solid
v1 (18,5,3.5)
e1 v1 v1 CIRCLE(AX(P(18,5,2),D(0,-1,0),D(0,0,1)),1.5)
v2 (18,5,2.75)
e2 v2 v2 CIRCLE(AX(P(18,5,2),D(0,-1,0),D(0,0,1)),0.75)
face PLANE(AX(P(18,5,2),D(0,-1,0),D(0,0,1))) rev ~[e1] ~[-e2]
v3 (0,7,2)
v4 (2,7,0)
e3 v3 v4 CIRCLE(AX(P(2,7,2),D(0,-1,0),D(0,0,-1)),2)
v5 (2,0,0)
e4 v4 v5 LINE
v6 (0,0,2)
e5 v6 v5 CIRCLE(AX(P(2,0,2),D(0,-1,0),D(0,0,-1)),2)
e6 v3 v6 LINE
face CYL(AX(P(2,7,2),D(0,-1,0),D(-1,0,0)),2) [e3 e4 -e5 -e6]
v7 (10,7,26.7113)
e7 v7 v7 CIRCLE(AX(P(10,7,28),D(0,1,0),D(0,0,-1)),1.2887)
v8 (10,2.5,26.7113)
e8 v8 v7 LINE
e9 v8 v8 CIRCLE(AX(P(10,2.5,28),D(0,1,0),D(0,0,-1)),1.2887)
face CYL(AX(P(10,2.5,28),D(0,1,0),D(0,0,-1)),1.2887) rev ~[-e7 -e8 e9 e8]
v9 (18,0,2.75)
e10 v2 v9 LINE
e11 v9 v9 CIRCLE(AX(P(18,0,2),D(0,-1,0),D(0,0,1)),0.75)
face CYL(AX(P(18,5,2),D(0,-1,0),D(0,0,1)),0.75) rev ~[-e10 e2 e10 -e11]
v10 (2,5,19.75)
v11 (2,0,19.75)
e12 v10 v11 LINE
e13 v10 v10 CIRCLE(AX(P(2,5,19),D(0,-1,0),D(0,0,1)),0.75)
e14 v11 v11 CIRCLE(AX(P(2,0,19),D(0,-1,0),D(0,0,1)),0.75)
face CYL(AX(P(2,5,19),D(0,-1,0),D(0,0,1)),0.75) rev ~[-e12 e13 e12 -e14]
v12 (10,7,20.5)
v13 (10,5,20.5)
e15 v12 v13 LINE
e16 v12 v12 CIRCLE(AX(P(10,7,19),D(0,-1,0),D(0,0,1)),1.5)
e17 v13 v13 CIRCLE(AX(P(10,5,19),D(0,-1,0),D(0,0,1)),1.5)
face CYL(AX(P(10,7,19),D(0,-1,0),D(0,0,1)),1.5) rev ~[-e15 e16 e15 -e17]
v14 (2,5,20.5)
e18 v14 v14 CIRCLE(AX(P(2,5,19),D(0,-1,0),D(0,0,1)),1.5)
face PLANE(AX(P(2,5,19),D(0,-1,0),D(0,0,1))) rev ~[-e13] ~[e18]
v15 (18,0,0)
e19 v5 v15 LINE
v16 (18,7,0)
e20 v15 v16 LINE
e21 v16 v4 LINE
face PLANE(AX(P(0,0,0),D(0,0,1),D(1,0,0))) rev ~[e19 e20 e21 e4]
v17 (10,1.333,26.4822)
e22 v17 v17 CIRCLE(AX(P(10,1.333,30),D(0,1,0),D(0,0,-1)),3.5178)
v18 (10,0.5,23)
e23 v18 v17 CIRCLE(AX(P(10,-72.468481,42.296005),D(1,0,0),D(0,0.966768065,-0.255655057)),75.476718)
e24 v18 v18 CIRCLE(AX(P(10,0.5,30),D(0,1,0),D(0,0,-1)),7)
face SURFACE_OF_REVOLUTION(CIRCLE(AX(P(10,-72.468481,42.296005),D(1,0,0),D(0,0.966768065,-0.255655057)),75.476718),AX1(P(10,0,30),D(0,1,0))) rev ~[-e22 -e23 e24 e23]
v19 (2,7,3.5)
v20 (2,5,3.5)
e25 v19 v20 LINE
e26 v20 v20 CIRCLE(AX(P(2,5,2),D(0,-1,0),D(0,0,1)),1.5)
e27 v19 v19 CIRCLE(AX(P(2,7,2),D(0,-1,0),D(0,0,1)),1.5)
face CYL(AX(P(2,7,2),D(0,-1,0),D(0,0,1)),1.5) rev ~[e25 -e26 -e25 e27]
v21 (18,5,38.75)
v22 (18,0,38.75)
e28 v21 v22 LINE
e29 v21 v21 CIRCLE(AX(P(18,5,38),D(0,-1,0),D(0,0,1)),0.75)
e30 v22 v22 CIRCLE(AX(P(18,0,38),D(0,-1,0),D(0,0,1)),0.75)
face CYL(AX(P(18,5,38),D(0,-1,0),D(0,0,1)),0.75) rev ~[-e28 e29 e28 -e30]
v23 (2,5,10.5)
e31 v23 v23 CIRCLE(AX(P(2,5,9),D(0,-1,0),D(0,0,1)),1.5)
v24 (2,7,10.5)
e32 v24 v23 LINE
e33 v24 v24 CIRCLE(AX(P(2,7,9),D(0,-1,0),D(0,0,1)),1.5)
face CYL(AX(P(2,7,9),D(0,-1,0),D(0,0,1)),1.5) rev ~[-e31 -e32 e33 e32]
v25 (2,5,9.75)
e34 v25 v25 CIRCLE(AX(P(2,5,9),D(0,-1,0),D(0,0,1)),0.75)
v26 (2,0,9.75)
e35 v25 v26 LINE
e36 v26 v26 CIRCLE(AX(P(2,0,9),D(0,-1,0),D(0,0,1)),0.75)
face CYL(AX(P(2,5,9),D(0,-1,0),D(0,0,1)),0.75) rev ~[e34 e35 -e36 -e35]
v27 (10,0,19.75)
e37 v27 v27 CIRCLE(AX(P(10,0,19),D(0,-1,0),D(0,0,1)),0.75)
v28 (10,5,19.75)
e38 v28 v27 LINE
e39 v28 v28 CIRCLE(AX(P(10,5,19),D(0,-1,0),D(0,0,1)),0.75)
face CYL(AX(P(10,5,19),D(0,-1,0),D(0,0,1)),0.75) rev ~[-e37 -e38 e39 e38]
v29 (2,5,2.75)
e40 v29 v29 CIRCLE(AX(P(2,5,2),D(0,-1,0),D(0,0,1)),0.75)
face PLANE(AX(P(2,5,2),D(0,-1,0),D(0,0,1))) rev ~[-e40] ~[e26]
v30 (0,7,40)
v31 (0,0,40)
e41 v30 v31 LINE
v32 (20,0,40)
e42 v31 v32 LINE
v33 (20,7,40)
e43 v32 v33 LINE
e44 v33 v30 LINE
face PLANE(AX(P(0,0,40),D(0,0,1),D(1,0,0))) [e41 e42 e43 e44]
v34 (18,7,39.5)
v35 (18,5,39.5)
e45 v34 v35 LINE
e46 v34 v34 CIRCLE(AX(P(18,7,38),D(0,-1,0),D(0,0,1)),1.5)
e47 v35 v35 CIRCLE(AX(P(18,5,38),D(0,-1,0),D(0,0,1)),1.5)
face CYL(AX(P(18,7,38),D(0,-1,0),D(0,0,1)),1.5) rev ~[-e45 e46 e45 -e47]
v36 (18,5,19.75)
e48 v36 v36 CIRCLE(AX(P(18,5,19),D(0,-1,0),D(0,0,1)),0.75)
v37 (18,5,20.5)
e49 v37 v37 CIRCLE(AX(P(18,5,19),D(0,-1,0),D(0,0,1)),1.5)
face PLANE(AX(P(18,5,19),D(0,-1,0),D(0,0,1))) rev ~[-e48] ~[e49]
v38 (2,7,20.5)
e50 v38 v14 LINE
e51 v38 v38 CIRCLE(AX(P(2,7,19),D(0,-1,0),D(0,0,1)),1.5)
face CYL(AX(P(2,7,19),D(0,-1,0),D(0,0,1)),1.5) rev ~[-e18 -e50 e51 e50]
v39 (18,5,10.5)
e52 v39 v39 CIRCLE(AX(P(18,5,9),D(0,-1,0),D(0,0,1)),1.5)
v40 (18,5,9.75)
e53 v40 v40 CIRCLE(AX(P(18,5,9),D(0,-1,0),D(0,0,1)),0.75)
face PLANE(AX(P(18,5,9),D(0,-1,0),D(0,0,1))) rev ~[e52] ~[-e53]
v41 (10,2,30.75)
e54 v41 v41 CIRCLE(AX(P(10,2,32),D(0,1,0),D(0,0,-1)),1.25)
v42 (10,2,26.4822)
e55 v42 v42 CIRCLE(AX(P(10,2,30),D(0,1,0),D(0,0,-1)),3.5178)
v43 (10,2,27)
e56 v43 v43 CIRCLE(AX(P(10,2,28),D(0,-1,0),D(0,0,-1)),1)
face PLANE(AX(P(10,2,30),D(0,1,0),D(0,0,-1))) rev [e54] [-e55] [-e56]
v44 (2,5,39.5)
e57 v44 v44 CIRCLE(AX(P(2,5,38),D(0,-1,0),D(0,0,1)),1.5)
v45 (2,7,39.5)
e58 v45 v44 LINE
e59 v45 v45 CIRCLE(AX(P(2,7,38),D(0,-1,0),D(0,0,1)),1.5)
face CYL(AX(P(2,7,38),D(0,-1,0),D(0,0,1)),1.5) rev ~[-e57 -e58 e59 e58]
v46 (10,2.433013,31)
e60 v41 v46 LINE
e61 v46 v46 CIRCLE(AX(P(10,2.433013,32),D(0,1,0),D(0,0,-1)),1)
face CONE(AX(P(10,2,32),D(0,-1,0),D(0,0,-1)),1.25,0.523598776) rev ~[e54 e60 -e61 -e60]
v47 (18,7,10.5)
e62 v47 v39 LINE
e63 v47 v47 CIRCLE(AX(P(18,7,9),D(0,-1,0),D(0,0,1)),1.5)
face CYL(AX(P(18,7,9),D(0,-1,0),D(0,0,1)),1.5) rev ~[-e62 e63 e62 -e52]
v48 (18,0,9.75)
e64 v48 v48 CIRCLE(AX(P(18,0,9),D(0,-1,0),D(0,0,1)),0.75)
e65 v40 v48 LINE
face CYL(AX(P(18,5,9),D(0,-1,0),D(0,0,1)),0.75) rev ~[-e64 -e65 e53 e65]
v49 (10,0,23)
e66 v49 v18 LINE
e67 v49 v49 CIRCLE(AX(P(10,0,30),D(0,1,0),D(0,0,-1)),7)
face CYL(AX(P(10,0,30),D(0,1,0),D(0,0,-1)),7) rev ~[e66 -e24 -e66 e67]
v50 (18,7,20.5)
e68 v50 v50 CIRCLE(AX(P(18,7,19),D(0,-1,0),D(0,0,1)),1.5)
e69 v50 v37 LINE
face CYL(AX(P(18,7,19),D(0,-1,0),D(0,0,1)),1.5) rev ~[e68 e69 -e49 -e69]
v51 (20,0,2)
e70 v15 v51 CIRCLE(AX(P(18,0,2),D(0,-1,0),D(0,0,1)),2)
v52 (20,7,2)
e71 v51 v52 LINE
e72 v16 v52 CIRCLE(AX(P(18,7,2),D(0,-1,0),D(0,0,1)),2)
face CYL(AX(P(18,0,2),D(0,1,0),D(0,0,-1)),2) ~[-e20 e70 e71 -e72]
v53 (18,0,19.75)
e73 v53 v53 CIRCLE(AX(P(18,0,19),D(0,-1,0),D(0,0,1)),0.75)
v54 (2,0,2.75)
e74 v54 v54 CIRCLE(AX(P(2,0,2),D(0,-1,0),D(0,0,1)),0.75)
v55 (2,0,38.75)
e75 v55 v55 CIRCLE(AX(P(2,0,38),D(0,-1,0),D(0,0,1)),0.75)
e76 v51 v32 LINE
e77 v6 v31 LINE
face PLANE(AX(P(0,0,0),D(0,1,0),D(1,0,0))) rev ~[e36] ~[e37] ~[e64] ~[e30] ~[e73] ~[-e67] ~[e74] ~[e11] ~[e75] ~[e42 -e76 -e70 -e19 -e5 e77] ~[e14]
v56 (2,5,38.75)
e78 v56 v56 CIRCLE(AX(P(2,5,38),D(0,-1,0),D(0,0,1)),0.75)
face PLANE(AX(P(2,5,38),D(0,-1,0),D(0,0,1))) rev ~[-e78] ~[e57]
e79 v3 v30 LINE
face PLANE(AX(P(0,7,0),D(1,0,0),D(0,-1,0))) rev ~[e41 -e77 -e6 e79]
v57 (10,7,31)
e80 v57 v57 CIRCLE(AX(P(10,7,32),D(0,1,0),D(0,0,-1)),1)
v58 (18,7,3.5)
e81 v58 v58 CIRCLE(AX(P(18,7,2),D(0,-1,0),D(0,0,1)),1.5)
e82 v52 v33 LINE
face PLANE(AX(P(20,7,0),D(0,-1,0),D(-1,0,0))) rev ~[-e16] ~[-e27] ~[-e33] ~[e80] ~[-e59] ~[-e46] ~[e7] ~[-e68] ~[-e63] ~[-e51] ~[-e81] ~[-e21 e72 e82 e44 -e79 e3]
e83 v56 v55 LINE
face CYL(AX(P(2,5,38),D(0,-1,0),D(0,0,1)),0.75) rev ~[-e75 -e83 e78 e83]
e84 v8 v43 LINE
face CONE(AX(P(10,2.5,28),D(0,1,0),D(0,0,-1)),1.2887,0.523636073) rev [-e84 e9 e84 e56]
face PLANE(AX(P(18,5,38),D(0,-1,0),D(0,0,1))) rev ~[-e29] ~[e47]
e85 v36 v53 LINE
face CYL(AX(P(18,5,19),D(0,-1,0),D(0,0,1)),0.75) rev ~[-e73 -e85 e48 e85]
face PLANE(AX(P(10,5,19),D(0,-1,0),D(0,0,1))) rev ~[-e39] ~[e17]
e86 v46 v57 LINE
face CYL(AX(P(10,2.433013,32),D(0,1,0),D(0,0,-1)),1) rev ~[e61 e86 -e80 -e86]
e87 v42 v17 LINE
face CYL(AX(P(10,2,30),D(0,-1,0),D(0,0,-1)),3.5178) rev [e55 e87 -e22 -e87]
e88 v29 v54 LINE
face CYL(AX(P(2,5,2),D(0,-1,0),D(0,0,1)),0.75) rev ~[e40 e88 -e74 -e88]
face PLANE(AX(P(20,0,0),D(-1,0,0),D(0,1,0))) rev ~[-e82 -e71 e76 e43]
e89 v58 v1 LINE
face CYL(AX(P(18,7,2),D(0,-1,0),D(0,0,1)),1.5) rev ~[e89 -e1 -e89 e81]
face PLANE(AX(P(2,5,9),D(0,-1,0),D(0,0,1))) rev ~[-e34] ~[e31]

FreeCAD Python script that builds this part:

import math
import FreeCAD as App
import Part
import Sketcher
from FreeCAD import Vector
Q = App.Units.Quantity


def edges_at(feature, points):
    """Names of the edges that pass closest to the given points."""
    edges = feature.Shape.Edges
    near = lambda p: min(range(len(edges)), key=lambda i: edges[i].distToShape(Part.Vertex(*p))[0])
    return sorted({f"Edge{near(p) + 1}" for p in points})

doc = App.newDocument("Part")
body = doc.addObject("PartDesign::Body", "Body")

# Sketch on XY plane
sketch1 = doc.addObject("Sketcher::SketchObject", "Sketch")
body.addObject(sketch1)
sketch1.AttachmentSupport = (doc.XY_Plane, [""])
sketch1.MapMode = "FlatFace"
sketch1.addGeometry(Part.LineSegment(Vector(0, 7, 0), Vector(0, 0, 0)), False)
sketch1.addGeometry(Part.LineSegment(Vector(0, 0, 0), Vector(20, 0, 0)), False)
sketch1.addGeometry(Part.LineSegment(Vector(20, 0, 0), Vector(20, 7, 0)), False)
sketch1.addGeometry(Part.LineSegment(Vector(20, 7, 0), Vector(0, 7, 0)), False)
sketch1.addConstraint(Sketcher.Constraint("Coincident", 0, 2, 1, 1))
sketch1.addConstraint(Sketcher.Constraint("Coincident", 1, 2, 2, 1))
sketch1.addConstraint(Sketcher.Constraint("Coincident", 2, 2, 3, 1))
sketch1.addConstraint(Sketcher.Constraint("Coincident", 3, 2, 0, 1))
sketch1.addConstraint(Sketcher.Constraint("Vertical", 0))
sketch1.addConstraint(Sketcher.Constraint("Horizontal", 1))
sketch1.addConstraint(Sketcher.Constraint("Vertical", 2))
sketch1.addConstraint(Sketcher.Constraint("Horizontal", 3))
sketch1.addConstraint(Sketcher.Constraint("Coincident", 0, 2, -1, 1))
sketch1.addConstraint(Sketcher.Constraint("DistanceX", 1, 1, 1, 2, Q("20 mm")))
sketch1.addConstraint(Sketcher.Constraint("DistanceY", 0, 2, 0, 1, Q("7 mm")))
pad1 = doc.addObject("PartDesign::Pad", "Pad")
body.addObject(pad1)
pad1.Profile = sketch1
pad1.Length = 40

# Sketch on YZ plane
sketch2 = doc.addObject("Sketcher::SketchObject", "Sketch001")
body.addObject(sketch2)
sketch2.AttachmentSupport = (doc.YZ_Plane, [""])
sketch2.MapMode = "FlatFace"
sketch2.AttachmentOffset = App.Placement(Vector(0, 0, 10), App.Rotation())
sketch2.addGeometry(Part.LineSegment(Vector(2, 30, 0), Vector(0, 30, 0)), False)
sketch2.addGeometry(Part.LineSegment(Vector(0, 30, 0), Vector(0, 23, 0)), False)
sketch2.addGeometry(Part.LineSegment(Vector(0, 23, 0), Vector(0.5, 23, 0)), False)
sketch2.addGeometry(Part.ArcOfCircle(Part.Circle(Vector(-72.5, 42.3, 0), Vector(0, 0, 1), 75.5), math.radians(-14.81), math.radians(-12.09)), False)
sketch2.addGeometry(Part.LineSegment(Vector(1.3, 26.5, 0), Vector(2, 26.5, 0)), False)
sketch2.addGeometry(Part.LineSegment(Vector(2, 26.5, 0), Vector(2, 30, 0)), False)
sketch2.addGeometry(Part.LineSegment(Vector(-72.5, 30, 0), Vector(2, 30, 0)), True)  # axis
sketch2.addConstraint(Sketcher.Constraint("Coincident", 0, 2, 1, 1))
sketch2.addConstraint(Sketcher.Constraint("Coincident", 1, 2, 2, 1))
sketch2.addConstraint(Sketcher.Constraint("Coincident", 2, 2, 3, 1))
sketch2.addConstraint(Sketcher.Constraint("Coincident", 3, 2, 4, 1))
sketch2.addConstraint(Sketcher.Constraint("Coincident", 4, 2, 5, 1))
sketch2.addConstraint(Sketcher.Constraint("Coincident", 5, 2, 0, 1))
sketch2.addConstraint(Sketcher.Constraint("Horizontal", 0))
sketch2.addConstraint(Sketcher.Constraint("Vertical", 1))
sketch2.addConstraint(Sketcher.Constraint("Horizontal", 2))
sketch2.addConstraint(Sketcher.Constraint("Horizontal", 4))
sketch2.addConstraint(Sketcher.Constraint("Vertical", 5))
sketch2.addConstraint(Sketcher.Constraint("Horizontal", 6))
sketch2.addConstraint(Sketcher.Constraint("Coincident", 6, 2, 5, 2))
sketch2.addConstraint(Sketcher.Constraint("PointOnObject", 0, 2, -2))
sketch2.addConstraint(Sketcher.Constraint("Vertical", 3, 3, 6, 1))
sketch2.addConstraint(Sketcher.Constraint("DistanceX", 0, 2, 0, 1, Q("2 mm")))
sketch2.addConstraint(Sketcher.Constraint("DistanceY", 1, 2, 1, 1, Q("7 mm")))
sketch2.addConstraint(Sketcher.Constraint("DistanceX", 2, 1, 2, 2, Q("0.5 mm")))
sketch2.addConstraint(Sketcher.Constraint("DistanceY", -1, 1, 0, 2, Q("30 mm")))
sketch2.addConstraint(Sketcher.Constraint("Radius", 3, Q("75.4767 mm")))
sketch2.addConstraint(Sketcher.Constraint("DistanceX", 4, 1, 4, 2, Q("0.667 mm")))
sketch2.addConstraint(Sketcher.Constraint("DistanceX", 6, 1, 6, 2, Q("74.4685 mm")))
groove = doc.addObject("PartDesign::Groove", "Groove")
body.addObject(groove)
groove.Profile = sketch2
groove.ReferenceAxis = (sketch2, ["Axis0"])
groove.Angle = 360

# Sketch on XZ plane
sketch3 = doc.addObject("Sketcher::SketchObject", "Sketch002")
body.addObject(sketch3)
sketch3.AttachmentSupport = (doc.XZ_Plane, [""])
sketch3.MapMode = "FlatFace"
sketch3.AttachmentOffset = App.Placement(Vector(0, 0, -2), App.Rotation())
sketch3.addGeometry(Part.Circle(Vector(10, 32, 0), Vector(0, 0, 1), 1), False)
sketch3.addConstraint(Sketcher.Constraint("Diameter", 0, Q("2 mm")))
sketch3.addConstraint(Sketcher.Constraint("DistanceX", -1, 1, 0, 3, Q("10 mm")))
sketch3.addConstraint(Sketcher.Constraint("DistanceY", -1, 1, 0, 3, Q("32 mm")))
doc.recompute()
hole = doc.addObject("PartDesign::Hole", "Hole")
body.addObject(hole)
hole.Profile = sketch3
hole.ThreadType = "None"
hole.Diameter = 2
hole.DepthType = "Dimension"
hole.Depth = 10
hole.DrillPoint = "Flat"
hole.HoleCutType = "Countersink"
hole.HoleCutDiameter = 2.5
hole.HoleCutCountersinkAngle = 60

# Sketch on XZ plane
sketch4 = doc.addObject("Sketcher::SketchObject", "Sketch003")
body.addObject(sketch4)
sketch4.AttachmentSupport = (doc.XZ_Plane, [""])
sketch4.MapMode = "FlatFace"
sketch4.AttachmentOffset = App.Placement(Vector(0, 0, -2), App.Rotation())
sketch4.addGeometry(Part.Circle(Vector(10, 28, 0), Vector(0, 0, 1), 1), False)
sketch4.addConstraint(Sketcher.Constraint("Diameter", 0, Q("2 mm")))
sketch4.addConstraint(Sketcher.Constraint("DistanceX", -1, 1, 0, 3, Q("10 mm")))
sketch4.addConstraint(Sketcher.Constraint("DistanceY", -1, 1, 0, 3, Q("28 mm")))
pocket1 = doc.addObject("PartDesign::Pocket", "Pocket")
body.addObject(pocket1)
pocket1.Profile = sketch4
pocket1.Length = 40

# Sketch on YZ plane
sketch5 = doc.addObject("Sketcher::SketchObject", "Sketch004")
body.addObject(sketch5)
sketch5.AttachmentSupport = (doc.YZ_Plane, [""])
sketch5.MapMode = "FlatFace"
sketch5.AttachmentOffset = App.Placement(Vector(0, 0, 10), App.Rotation())
sketch5.addGeometry(Part.LineSegment(Vector(2, 27, 0), Vector(2.5, 26.7, 0)), False)
sketch5.addGeometry(Part.LineSegment(Vector(2.5, 26.7, 0), Vector(8.5, 26.7, 0)), False)
sketch5.addGeometry(Part.LineSegment(Vector(8.5, 26.7, 0), Vector(8.5, 28, 0)), False)
sketch5.addGeometry(Part.LineSegment(Vector(8.5, 28, 0), Vector(2, 28, 0)), False)
sketch5.addGeometry(Part.LineSegment(Vector(2, 28, 0), Vector(2, 27, 0)), False)
sketch5.addGeometry(Part.LineSegment(Vector(2, 28, 0), Vector(8.5, 28, 0)), True)  # axis
sketch5.addConstraint(Sketcher.Constraint("Coincident", 0, 2, 1, 1))
sketch5.addConstraint(Sketcher.Constraint("Coincident", 1, 2, 2, 1))
sketch5.addConstraint(Sketcher.Constraint("Coincident", 2, 2, 3, 1))
sketch5.addConstraint(Sketcher.Constraint("Coincident", 3, 2, 4, 1))
sketch5.addConstraint(Sketcher.Constraint("Coincident", 4, 2, 0, 1))
sketch5.addConstraint(Sketcher.Constraint("Horizontal", 1))
sketch5.addConstraint(Sketcher.Constraint("Vertical", 2))
sketch5.addConstraint(Sketcher.Constraint("Horizontal", 3))
sketch5.addConstraint(Sketcher.Constraint("Vertical", 4))
sketch5.addConstraint(Sketcher.Constraint("Horizontal", 5))
sketch5.addConstraint(Sketcher.Constraint("Coincident", 5, 1, 3, 2))
sketch5.addConstraint(Sketcher.Constraint("Vertical", 1, 2, 5, 2))
sketch5.addConstraint(Sketcher.Constraint("DistanceY", 4, 2, 4, 1, Q("1 mm")))
sketch5.addConstraint(Sketcher.Constraint("DistanceY", -1, 1, 2, 2, Q("28 mm")))
sketch5.addConstraint(Sketcher.Constraint("DistanceX", -1, 1, 3, 2, Q("2 mm")))
sketch5.addConstraint(Sketcher.Constraint("DistanceX", -1, 1, 0, 2, Q("2.5 mm")))
sketch5.addConstraint(Sketcher.Constraint("DistanceX", 1, 1, 1, 2, Q("5.991 mm")))
sketch5.addConstraint(Sketcher.Constraint("DistanceY", 2, 1, 2, 2, Q("1.2887 mm")))
groove2 = doc.addObject("PartDesign::Groove", "Groove001")
body.addObject(groove2)
groove2.Profile = sketch5
groove2.ReferenceAxis = (sketch5, ["Axis0"])
groove2.Angle = 360
doc.recompute()

fillet = doc.addObject("PartDesign::Fillet", "Fillet")
body.addObject(fillet)
fillet.Base = (groove2, edges_at(groove2, [(0, 3.5, 0), (20, 3.5, 0)]))
fillet.Radius = 2

# Sketch on XZ plane
sketch6 = doc.addObject("Sketcher::SketchObject", "Sketch005")
body.addObject(sketch6)
sketch6.AttachmentSupport = (doc.XZ_Plane, [""])
sketch6.MapMode = "FlatFace"
sketch6.AttachmentOffset = App.Placement(Vector(0, 0, -7), App.Rotation())
sketch6.addGeometry(Part.Circle(Vector(2, 38, 0), Vector(0, 0, 1), 0.8), False)
sketch6.addGeometry(Part.Circle(Vector(2, 19, 0), Vector(0, 0, 1), 0.8), False)
sketch6.addGeometry(Part.Circle(Vector(2, 9, 0), Vector(0, 0, 1), 0.8), False)
sketch6.addGeometry(Part.Circle(Vector(2, 2, 0), Vector(0, 0, 1), 0.8), False)
sketch6.addGeometry(Part.Circle(Vector(18, 2, 0), Vector(0, 0, 1), 0.8), False)
sketch6.addGeometry(Part.Circle(Vector(18, 9, 0), Vector(0, 0, 1), 0.8), False)
sketch6.addGeometry(Part.Circle(Vector(18, 19, 0), Vector(0, 0, 1), 0.8), False)
sketch6.addGeometry(Part.Circle(Vector(10, 19, 0), Vector(0, 0, 1), 0.8), False)
sketch6.addGeometry(Part.Circle(Vector(18, 38, 0), Vector(0, 0, 1), 0.8), False)
sketch6.addConstraint(Sketcher.Constraint("Equal", 0, 1))
sketch6.addConstraint(Sketcher.Constraint("Equal", 1, 2))
sketch6.addConstraint(Sketcher.Constraint("Equal", 2, 3))
sketch6.addConstraint(Sketcher.Constraint("Equal", 3, 4))
sketch6.addConstraint(Sketcher.Constraint("Equal", 4, 5))
sketch6.addConstraint(Sketcher.Constraint("Equal", 5, 6))
sketch6.addConstraint(Sketcher.Constraint("Equal", 6, 7))
sketch6.addConstraint(Sketcher.Constraint("Equal", 7, 8))
sketch6.addConstraint(Sketcher.Constraint("Horizontal", 3, 3, 4, 3))
sketch6.addConstraint(Sketcher.Constraint("Horizontal", 2, 3, 5, 3))
sketch6.addConstraint(Sketcher.Constraint("Horizontal", 1, 3, 6, 3))
sketch6.addConstraint(Sketcher.Constraint("Horizontal", 6, 3, 7, 3))
sketch6.addConstraint(Sketcher.Constraint("Horizontal", 0, 3, 8, 3))
sketch6.addConstraint(Sketcher.Constraint("Vertical", 0, 3, 1, 3))
sketch6.addConstraint(Sketcher.Constraint("Vertical", 1, 3, 2, 3))
sketch6.addConstraint(Sketcher.Constraint("Vertical", 2, 3, 3, 3))
sketch6.addConstraint(Sketcher.Constraint("Vertical", 4, 3, 5, 3))
sketch6.addConstraint(Sketcher.Constraint("Vertical", 5, 3, 6, 3))
sketch6.addConstraint(Sketcher.Constraint("Vertical", 6, 3, 8, 3))
sketch6.addConstraint(Sketcher.Constraint("Diameter", 0, Q("1.5 mm")))
sketch6.addConstraint(Sketcher.Constraint("DistanceX", -1, 1, 0, 3, Q("2 mm")))
sketch6.addConstraint(Sketcher.Constraint("DistanceY", -1, 1, 0, 3, Q("38 mm")))
sketch6.addConstraint(Sketcher.Constraint("DistanceY", -1, 1, 1, 3, Q("19 mm")))
sketch6.addConstraint(Sketcher.Constraint("DistanceY", -1, 1, 2, 3, Q("9 mm")))
sketch6.addConstraint(Sketcher.Constraint("DistanceY", -1, 1, 3, 3, Q("2 mm")))
sketch6.addConstraint(Sketcher.Constraint("DistanceX", -1, 1, 4, 3, Q("18 mm")))
sketch6.addConstraint(Sketcher.Constraint("DistanceX", -1, 1, 7, 3, Q("10 mm")))
doc.recompute()
hole2 = doc.addObject("PartDesign::Hole", "Hole001")
body.addObject(hole2)
hole2.Profile = sketch6
hole2.ThreadType = "None"
hole2.Diameter = 1.5
hole2.DepthType = "Dimension"
hole2.Depth = 10
hole2.DrillPoint = "Flat"
hole2.HoleCutType = "Counterbore"
hole2.HoleCutDiameter = 3
hole2.HoleCutDepth = 2
hole2.Reversed = True

doc.recompute()
